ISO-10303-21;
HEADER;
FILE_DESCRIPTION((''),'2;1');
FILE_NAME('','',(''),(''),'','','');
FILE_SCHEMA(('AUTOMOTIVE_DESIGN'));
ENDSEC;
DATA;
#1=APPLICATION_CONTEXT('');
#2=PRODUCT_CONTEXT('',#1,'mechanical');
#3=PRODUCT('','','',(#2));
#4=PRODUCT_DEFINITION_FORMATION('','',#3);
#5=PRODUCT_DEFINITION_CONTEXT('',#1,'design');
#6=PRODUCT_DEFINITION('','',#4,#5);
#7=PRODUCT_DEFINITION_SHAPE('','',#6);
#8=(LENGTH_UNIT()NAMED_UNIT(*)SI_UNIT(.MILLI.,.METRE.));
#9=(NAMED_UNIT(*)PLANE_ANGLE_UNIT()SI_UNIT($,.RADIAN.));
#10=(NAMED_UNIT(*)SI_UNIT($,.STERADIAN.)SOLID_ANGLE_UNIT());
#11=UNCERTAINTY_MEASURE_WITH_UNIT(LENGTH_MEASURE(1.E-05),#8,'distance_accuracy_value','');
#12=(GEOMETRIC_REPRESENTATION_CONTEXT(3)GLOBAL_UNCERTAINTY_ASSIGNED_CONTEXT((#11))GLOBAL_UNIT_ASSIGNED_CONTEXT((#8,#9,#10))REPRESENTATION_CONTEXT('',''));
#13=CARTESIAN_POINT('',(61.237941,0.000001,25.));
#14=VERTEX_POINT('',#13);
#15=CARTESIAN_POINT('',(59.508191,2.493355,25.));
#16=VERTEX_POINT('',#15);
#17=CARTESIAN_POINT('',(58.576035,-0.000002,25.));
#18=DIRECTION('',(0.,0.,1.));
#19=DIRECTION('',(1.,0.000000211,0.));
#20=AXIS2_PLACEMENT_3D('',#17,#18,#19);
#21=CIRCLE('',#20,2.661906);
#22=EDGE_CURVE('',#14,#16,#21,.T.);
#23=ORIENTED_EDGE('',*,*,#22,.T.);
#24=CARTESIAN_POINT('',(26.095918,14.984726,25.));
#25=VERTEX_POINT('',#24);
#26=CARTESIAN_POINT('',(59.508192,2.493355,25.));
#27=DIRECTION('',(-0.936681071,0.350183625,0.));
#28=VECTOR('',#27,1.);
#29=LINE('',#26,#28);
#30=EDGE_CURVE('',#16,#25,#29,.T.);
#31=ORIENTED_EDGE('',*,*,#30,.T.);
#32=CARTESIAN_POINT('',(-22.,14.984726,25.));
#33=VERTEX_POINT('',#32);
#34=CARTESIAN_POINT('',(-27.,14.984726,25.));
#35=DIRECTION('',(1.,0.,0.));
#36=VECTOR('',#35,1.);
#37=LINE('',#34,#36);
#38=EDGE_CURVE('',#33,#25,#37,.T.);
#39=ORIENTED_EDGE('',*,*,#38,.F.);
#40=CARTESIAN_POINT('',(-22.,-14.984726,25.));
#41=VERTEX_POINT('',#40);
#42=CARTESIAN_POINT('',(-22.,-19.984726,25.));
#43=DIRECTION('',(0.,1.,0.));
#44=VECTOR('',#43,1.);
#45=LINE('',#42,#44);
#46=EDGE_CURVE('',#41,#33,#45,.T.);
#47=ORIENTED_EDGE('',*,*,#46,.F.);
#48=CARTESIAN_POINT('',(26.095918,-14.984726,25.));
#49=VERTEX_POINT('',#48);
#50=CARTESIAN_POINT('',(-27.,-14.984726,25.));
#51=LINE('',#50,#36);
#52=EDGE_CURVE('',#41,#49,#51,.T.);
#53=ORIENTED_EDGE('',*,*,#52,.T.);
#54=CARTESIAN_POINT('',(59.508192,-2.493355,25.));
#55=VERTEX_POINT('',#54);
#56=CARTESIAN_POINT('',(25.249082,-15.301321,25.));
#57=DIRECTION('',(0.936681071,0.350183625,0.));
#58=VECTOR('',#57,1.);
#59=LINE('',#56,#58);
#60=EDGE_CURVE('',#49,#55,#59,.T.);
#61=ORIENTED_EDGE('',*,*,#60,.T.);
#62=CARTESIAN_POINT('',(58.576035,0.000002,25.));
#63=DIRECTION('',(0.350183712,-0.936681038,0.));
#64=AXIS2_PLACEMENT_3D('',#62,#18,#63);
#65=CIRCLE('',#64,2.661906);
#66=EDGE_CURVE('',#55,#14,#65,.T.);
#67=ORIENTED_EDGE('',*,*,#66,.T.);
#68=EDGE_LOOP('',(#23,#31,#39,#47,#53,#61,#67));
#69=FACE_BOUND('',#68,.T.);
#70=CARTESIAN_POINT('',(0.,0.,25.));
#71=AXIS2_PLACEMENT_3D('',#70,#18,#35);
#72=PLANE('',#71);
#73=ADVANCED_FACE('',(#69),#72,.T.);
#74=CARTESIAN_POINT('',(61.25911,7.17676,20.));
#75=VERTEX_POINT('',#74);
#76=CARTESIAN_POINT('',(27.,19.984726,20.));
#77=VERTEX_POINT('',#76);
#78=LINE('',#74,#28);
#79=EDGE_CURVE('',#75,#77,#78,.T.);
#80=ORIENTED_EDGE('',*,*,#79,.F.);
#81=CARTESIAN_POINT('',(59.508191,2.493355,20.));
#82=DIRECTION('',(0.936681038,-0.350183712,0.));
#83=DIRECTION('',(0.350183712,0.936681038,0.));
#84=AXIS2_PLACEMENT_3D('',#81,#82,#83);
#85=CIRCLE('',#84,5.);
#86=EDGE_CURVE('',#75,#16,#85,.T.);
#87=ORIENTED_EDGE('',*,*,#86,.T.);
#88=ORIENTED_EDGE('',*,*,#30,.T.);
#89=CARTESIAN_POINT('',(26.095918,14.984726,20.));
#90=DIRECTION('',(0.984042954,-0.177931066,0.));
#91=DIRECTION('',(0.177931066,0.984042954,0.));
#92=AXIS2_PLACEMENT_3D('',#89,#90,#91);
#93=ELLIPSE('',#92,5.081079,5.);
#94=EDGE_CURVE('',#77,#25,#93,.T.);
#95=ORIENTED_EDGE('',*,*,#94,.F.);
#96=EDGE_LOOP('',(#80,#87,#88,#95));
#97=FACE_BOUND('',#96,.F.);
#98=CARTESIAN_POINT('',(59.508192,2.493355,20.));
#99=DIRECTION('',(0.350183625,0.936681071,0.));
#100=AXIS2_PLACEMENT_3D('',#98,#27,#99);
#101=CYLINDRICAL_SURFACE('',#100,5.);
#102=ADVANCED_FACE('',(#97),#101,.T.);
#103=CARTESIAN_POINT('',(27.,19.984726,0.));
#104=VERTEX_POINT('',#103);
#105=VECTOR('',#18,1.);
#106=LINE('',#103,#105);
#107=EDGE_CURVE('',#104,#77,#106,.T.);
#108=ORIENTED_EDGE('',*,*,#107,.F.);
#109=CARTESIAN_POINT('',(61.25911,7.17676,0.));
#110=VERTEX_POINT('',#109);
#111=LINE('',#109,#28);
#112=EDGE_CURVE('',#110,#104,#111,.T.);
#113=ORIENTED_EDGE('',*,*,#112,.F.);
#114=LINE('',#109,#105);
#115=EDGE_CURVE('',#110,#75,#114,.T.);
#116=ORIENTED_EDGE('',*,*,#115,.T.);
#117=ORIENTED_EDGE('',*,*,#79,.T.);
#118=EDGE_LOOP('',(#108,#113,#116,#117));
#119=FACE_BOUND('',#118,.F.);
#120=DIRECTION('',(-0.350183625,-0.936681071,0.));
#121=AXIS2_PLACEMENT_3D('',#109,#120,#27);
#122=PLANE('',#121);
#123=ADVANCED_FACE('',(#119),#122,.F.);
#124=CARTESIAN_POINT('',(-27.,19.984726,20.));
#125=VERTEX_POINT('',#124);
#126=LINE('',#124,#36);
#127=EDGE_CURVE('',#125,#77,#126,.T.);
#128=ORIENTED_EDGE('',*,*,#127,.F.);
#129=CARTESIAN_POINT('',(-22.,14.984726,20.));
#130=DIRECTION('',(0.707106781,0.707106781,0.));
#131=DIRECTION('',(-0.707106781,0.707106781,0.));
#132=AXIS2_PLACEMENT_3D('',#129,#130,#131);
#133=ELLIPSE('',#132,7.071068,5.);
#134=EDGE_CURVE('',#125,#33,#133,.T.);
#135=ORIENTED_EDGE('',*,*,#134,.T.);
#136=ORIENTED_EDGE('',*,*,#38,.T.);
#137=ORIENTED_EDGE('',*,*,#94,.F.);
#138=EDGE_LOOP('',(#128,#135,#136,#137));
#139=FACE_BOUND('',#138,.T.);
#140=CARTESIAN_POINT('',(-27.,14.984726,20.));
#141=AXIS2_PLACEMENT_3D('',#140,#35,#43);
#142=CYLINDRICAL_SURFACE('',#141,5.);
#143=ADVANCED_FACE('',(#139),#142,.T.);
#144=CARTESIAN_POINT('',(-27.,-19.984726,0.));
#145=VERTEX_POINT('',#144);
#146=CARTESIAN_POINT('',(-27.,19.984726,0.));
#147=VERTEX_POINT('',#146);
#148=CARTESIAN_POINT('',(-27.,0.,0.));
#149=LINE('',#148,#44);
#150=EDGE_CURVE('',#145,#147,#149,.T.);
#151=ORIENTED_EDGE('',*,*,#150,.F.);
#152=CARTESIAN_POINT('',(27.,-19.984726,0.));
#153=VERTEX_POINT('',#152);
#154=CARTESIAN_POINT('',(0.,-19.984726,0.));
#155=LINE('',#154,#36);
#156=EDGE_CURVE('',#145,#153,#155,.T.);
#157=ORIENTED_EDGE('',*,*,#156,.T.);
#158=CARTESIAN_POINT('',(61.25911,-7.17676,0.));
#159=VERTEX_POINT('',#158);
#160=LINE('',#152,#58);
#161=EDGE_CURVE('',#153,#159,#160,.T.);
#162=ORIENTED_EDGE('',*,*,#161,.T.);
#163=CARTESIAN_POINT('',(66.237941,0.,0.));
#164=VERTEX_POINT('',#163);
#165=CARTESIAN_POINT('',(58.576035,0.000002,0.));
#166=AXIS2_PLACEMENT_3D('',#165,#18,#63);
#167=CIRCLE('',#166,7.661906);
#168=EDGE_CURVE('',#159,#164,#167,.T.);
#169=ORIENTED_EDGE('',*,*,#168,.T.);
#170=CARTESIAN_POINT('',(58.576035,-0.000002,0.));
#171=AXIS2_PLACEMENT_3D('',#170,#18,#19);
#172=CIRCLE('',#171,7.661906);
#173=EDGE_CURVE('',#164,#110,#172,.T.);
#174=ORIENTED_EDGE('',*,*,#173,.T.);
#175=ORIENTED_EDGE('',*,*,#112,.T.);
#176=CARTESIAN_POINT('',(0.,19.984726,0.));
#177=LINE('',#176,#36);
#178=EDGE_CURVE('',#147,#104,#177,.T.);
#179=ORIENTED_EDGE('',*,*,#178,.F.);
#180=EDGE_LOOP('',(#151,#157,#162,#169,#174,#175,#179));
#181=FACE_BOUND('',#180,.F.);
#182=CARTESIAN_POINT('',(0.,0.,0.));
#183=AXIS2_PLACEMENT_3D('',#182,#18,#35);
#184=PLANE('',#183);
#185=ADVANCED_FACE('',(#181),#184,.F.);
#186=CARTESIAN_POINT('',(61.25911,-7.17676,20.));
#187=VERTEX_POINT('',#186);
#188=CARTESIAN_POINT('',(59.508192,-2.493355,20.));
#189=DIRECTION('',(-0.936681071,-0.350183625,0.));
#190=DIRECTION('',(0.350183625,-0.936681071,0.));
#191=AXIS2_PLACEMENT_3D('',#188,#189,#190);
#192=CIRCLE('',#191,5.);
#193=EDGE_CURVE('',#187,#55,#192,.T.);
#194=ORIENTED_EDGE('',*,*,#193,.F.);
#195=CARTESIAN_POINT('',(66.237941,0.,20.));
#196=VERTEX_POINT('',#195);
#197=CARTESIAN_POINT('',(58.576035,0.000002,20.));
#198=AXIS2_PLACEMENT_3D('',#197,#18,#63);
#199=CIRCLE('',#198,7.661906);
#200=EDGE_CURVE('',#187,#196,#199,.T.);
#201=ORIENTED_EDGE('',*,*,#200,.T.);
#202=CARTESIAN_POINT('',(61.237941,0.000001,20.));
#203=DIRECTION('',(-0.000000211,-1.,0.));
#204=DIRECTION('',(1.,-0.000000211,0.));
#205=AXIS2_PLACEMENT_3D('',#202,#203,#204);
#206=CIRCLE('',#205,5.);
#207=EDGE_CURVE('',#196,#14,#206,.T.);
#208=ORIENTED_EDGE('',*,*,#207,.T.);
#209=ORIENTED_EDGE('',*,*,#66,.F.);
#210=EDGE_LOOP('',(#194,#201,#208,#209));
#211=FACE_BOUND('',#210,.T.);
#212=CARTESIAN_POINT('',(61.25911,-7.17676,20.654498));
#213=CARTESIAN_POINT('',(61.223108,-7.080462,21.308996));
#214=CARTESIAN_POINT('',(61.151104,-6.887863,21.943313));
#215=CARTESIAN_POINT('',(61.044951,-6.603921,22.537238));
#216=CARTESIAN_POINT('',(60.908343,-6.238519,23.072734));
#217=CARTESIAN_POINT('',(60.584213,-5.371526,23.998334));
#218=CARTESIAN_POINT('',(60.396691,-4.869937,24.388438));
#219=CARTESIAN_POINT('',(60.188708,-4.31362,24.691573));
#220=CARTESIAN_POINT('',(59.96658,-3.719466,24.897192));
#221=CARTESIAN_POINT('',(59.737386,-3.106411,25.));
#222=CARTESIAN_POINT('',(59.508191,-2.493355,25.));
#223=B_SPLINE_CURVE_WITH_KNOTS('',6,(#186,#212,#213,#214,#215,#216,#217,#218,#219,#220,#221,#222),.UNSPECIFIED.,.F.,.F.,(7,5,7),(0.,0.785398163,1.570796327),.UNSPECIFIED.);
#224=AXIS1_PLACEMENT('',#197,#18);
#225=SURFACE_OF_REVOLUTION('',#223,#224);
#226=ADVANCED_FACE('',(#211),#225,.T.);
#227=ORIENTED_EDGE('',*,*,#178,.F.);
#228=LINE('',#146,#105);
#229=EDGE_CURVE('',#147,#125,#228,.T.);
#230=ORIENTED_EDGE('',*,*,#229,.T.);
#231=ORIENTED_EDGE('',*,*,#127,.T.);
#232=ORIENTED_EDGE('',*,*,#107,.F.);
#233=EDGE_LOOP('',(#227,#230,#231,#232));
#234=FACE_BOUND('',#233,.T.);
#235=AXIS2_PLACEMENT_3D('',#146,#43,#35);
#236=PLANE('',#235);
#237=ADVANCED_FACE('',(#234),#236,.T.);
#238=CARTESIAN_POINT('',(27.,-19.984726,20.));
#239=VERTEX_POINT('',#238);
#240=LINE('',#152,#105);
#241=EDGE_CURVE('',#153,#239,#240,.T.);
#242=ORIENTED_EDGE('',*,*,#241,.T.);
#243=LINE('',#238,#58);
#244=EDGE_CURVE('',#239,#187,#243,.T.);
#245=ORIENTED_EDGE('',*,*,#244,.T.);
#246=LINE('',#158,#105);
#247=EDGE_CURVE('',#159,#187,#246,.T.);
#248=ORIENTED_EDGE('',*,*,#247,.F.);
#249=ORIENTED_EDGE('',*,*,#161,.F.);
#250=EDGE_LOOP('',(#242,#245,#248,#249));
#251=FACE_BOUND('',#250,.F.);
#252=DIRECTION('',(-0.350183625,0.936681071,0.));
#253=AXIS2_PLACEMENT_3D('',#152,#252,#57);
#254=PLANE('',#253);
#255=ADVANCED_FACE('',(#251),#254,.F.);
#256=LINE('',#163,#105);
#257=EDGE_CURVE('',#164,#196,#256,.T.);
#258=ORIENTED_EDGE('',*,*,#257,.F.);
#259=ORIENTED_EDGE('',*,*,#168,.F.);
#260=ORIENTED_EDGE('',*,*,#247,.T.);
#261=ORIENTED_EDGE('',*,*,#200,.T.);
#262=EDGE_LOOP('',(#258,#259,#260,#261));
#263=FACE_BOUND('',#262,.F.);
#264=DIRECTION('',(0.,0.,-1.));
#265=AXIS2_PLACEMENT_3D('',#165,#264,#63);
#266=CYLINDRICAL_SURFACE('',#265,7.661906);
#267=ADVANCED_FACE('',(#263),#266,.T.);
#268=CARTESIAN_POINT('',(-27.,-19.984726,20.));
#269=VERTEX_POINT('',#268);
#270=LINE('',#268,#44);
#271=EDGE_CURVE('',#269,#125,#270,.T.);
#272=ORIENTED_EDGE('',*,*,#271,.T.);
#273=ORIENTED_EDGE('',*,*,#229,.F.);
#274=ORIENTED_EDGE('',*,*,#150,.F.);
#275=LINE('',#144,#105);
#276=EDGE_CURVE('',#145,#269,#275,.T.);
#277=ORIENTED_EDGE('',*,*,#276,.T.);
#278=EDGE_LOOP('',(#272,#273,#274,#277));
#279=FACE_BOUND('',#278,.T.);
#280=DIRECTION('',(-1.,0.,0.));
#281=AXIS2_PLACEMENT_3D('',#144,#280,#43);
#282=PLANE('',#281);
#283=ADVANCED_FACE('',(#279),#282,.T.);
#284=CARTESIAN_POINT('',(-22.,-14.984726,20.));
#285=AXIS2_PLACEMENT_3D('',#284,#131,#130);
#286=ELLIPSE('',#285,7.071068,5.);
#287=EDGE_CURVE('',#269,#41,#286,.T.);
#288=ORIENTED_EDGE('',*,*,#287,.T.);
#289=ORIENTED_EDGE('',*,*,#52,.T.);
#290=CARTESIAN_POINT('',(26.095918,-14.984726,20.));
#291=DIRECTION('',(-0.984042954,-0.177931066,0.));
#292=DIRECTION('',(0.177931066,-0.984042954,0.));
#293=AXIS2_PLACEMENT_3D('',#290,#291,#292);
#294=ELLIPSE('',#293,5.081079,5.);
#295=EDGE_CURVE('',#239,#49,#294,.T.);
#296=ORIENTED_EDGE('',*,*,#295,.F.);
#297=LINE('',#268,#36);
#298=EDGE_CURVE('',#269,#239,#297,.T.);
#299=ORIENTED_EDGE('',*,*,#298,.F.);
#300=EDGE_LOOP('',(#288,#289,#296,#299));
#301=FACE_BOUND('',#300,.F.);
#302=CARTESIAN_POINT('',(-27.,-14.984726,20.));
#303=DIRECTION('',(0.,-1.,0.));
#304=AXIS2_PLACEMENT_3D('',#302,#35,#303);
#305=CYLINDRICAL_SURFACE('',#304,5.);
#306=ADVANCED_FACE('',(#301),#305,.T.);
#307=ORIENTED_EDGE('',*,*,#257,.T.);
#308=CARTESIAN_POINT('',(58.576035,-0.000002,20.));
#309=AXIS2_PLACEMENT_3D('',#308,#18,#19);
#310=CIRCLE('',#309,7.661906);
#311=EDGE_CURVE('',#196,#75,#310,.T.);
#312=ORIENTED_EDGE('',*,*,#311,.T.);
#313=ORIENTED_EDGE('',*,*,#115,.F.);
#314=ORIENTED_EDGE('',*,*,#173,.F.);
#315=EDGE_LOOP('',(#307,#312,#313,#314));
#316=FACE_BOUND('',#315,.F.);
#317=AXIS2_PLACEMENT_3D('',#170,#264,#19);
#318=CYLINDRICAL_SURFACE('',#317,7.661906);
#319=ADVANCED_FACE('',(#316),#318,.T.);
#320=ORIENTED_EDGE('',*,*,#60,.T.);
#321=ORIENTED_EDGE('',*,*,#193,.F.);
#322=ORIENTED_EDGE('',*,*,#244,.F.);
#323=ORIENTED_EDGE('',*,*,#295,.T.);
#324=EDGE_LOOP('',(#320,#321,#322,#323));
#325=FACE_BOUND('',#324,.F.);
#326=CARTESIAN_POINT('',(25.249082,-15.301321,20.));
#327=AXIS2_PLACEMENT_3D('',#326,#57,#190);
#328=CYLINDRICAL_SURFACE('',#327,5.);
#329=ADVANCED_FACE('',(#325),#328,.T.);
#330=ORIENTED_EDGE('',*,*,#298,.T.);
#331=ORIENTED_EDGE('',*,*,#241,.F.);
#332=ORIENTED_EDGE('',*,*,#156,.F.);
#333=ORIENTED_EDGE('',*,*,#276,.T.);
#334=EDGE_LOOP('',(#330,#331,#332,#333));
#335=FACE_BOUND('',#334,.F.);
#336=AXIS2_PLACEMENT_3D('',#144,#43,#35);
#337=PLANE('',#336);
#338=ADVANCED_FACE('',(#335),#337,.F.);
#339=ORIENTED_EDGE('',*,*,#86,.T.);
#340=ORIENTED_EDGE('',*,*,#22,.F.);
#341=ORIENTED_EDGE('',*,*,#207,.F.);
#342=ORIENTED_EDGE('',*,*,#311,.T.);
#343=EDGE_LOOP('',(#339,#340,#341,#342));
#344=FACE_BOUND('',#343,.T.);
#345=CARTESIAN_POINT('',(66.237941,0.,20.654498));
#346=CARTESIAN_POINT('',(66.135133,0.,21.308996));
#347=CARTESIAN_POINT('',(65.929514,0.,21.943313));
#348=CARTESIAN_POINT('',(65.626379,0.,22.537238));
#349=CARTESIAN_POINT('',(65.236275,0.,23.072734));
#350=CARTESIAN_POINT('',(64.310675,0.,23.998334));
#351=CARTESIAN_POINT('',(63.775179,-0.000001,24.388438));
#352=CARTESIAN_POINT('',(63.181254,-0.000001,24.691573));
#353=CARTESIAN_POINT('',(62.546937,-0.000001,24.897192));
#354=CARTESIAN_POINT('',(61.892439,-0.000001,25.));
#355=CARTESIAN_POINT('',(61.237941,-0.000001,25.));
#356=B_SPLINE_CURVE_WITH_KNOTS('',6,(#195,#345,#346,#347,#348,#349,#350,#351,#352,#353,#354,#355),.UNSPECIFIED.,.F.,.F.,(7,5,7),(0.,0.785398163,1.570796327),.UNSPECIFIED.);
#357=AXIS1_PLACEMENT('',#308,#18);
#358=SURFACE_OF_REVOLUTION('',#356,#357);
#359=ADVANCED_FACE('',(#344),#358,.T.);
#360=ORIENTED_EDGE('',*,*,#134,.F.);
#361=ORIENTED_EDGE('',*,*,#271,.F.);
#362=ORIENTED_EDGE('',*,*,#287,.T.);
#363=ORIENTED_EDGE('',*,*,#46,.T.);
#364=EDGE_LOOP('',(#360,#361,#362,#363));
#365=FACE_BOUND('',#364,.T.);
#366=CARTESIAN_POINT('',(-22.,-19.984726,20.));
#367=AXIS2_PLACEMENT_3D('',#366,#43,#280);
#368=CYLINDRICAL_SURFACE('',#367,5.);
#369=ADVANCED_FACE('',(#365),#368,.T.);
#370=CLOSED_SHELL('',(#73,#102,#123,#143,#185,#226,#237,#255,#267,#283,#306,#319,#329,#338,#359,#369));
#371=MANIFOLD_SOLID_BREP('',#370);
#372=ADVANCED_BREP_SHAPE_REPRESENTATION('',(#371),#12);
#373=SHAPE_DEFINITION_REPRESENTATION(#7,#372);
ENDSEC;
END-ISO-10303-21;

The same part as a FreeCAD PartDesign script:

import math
import FreeCAD as App
import Part
import Sketcher
from FreeCAD import Vector


def edges_at(feature, points):
    """Names of the edges that pass closest to the given points."""
    edges = feature.Shape.Edges
    near = lambda p: min(range(len(edges)), key=lambda i: edges[i].distToShape(Part.Vertex(*p))[0])
    return sorted({f"Edge{near(p) + 1}" for p in points})

doc = App.newDocument("Part")
params = doc.addObject("Spreadsheet::Sheet", "Params")
for row, (alias, value) in enumerate([
    ("sketch1_width", "54 mm"),
    ("pad1_length", "25 mm"),
    ("fillet_radius", "5 mm"),
], start=1):
    params.set(f"A{row}", alias)
    params.set(f"B{row}", "=" + value)
    params.setAlias(f"B{row}", alias)

body = doc.addObject("PartDesign::Body", "Body")

# Sketch on XY plane
sketch1 = doc.addObject("Sketcher::SketchObject", "Sketch")
body.addObject(sketch1)
sketch1.AttachmentSupport = (doc.XY_Plane, [""])
sketch1.MapMode = "FlatFace"
sketch1.addGeometry([
    Part.LineSegment(Vector(-27, 20, 0), Vector(-27, -20, 0)),  # 0
    Part.LineSegment(Vector(-27, -20, 0), Vector(27, -20, 0)),  # 1
    Part.LineSegment(Vector(27, -20, 0), Vector(61, -7, 0)),  # 2
    Part.ArcOfCircle(Part.Circle(Vector(59, 0, 0), Vector(0, 0, 1), 8), math.radians(-70), math.radians(0)),  # 3
    Part.ArcOfCircle(Part.Circle(Vector(59, 0, 0), Vector(0, 0, 1), 8), math.radians(0), math.radians(70)),  # 4
    Part.LineSegment(Vector(61, 7, 0), Vector(27, 20, 0)),  # 5
    Part.LineSegment(Vector(27, 20, 0), Vector(-27, 20, 0)),  # 6
], False)
sketch1.addConstraint([
    Sketcher.Constraint("Coincident", 0, 2, 1, 1),
    Sketcher.Constraint("Coincident", 1, 2, 2, 1),
    Sketcher.Constraint("Tangent", 2, 2, 3, 1),
    Sketcher.Constraint("Tangent", 3, 2, 4, 1),
    Sketcher.Constraint("Tangent", 4, 2, 5, 1),
    Sketcher.Constraint("Coincident", 5, 2, 6, 1),
    Sketcher.Constraint("Coincident", 6, 2, 0, 1),
    Sketcher.Constraint("Vertical", 0),
    Sketcher.Constraint("Horizontal", 1),
    Sketcher.Constraint("Horizontal", 6),
    Sketcher.Constraint("Equal", 3, 4),
    Sketcher.Constraint("Symmetric", 0, 2, 5, 2, -1, 1),
    Sketcher.Constraint("Symmetric", 2, 2, 4, 2, -1),
    Sketcher.Constraint("PointOnObject", 3, 2, -1),
    Sketcher.Constraint("DistanceX", 1, 1, 1, 2, 54.0),
    Sketcher.Constraint("Distance", 2, 36.575),
    Sketcher.Constraint("Radius", 3, 7.661906),
    Sketcher.Constraint("DistanceY", 0, 2, 0, 1, 39.969452),
])
sketch1.setExpression("Constraints[14]", "Params.sketch1_width")
pad1 = doc.addObject("PartDesign::Pad", "Pad")
body.addObject(pad1)
pad1.Profile = sketch1
pad1.setExpression("Length", "Params.pad1_length")
doc.recompute()

fillet = doc.addObject("PartDesign::Fillet", "Fillet")
body.addObject(fillet)
fillet.Base = (pad1, edges_at(pad1, [
    (0, -19.985, 25),
    (-27, 0, 25),
    (0, 19.985, 25),
    (44.13, 13.581, 25),
    (66.238, 0, 12.5),
    (44.13, -13.581, 25),
]))
fillet.setExpression("Radius", "Params.fillet_radius")

doc.recompute()
